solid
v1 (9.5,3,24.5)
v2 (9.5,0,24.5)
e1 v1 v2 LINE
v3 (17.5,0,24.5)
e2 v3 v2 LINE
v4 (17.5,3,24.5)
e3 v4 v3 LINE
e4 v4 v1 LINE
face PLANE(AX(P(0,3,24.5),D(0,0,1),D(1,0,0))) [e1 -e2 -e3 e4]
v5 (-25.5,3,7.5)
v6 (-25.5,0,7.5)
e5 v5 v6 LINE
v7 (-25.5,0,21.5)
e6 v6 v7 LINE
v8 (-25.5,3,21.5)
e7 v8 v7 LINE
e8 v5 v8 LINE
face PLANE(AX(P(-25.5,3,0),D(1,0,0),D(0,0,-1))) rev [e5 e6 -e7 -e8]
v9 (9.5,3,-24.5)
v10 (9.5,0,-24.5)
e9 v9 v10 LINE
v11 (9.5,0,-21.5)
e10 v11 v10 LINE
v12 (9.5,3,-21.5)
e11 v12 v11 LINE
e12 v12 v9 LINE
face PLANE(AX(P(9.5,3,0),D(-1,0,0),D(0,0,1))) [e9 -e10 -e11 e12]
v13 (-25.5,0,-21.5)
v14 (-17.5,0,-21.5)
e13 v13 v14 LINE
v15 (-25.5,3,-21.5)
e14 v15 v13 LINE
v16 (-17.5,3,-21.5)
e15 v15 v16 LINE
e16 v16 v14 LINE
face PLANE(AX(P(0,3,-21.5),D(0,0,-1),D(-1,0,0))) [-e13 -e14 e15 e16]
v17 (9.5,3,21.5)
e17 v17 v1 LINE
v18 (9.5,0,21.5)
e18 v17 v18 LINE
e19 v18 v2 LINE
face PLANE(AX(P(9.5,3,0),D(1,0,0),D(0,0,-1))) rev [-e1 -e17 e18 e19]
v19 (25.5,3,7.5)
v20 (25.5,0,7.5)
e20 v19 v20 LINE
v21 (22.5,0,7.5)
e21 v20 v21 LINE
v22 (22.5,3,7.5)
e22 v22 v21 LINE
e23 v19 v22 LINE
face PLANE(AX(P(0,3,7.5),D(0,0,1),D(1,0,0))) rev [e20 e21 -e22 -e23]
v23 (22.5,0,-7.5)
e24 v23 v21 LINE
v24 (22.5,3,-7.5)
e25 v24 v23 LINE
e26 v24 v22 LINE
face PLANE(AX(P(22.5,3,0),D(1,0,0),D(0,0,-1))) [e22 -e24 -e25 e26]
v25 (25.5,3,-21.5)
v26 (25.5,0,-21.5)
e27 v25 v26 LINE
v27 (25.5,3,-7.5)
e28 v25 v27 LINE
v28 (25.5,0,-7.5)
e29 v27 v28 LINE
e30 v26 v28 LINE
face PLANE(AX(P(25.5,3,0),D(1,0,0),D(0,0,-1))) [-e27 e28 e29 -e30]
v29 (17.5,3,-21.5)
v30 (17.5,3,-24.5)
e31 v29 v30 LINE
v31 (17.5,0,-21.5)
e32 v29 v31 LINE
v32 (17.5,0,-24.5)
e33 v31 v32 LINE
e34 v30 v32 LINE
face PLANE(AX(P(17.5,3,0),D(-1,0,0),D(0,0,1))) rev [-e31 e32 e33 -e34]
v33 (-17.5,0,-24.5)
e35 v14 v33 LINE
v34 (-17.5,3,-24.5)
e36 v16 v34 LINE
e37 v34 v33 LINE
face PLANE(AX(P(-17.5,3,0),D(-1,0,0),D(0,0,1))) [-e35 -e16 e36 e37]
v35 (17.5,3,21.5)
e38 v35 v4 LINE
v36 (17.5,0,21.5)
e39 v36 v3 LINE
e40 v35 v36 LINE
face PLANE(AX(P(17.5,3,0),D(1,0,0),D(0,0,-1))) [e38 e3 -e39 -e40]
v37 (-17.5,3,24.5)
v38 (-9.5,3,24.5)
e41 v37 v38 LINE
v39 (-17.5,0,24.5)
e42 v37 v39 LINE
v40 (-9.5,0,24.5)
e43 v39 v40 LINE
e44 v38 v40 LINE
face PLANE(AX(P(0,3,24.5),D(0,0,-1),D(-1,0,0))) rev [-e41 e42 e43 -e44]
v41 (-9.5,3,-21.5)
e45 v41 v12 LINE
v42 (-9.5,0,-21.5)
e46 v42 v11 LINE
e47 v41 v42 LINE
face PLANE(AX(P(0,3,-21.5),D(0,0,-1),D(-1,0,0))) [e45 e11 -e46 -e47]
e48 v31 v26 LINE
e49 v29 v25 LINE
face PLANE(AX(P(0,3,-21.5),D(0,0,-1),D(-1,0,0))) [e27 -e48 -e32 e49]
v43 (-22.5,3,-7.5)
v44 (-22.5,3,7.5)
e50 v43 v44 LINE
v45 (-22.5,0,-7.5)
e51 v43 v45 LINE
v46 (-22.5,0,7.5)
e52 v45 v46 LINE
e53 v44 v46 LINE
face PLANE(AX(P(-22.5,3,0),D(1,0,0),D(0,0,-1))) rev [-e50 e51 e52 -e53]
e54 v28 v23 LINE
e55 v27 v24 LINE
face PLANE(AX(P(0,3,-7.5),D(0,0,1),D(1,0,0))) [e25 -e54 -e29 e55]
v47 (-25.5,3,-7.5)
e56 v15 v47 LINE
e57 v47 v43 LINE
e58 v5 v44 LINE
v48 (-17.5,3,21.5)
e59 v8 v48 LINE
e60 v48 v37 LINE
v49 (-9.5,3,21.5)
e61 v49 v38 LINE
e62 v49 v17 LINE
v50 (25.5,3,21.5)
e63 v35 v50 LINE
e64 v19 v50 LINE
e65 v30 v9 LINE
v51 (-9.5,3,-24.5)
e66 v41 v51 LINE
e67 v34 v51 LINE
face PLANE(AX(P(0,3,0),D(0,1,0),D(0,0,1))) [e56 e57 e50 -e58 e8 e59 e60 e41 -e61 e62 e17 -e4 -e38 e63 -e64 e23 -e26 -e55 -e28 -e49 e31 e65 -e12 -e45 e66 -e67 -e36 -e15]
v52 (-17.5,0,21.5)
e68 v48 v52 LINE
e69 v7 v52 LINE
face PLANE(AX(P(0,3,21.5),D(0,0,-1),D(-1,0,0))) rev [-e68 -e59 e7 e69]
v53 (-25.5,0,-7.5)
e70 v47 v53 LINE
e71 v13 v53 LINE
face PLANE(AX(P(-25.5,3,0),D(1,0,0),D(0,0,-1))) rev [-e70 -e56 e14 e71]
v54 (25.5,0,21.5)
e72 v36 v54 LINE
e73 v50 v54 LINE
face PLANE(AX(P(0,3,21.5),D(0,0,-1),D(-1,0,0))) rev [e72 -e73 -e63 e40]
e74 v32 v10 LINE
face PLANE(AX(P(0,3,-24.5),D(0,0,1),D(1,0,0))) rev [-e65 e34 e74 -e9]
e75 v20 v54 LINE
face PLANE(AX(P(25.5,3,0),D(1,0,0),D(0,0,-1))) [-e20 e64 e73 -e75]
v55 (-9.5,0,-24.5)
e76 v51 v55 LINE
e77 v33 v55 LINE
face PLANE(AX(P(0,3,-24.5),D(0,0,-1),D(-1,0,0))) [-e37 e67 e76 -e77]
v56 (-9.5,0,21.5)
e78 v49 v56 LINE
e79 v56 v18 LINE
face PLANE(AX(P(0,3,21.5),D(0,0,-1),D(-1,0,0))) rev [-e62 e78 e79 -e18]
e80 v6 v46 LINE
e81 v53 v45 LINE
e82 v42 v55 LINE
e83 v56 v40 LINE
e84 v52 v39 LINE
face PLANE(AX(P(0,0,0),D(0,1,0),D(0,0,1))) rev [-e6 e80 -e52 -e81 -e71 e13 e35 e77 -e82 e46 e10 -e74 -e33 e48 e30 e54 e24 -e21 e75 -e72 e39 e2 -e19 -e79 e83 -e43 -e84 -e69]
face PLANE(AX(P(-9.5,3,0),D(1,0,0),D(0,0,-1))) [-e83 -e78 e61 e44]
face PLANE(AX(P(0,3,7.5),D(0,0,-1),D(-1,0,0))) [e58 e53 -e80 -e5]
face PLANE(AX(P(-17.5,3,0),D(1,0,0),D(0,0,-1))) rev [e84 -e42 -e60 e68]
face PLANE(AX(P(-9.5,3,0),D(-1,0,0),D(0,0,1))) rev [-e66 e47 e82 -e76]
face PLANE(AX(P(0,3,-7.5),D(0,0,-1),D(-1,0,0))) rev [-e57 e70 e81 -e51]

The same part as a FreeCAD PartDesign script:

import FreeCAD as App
import Part
import Sketcher

V = App.Vector

doc = App.newDocument("Part")
body = doc.addObject("PartDesign::Body", "Body")

sketch1 = body.newObject("Sketcher::SketchObject", "Sketch")
sketch1.AttachmentSupport = (doc.getObject("XZ_Plane"), [""])
sketch1.MapMode = "FlatFace"
sketch1.addGeometry([
    Part.LineSegment(V(-25.5, -21.5, 0), V(-25.5, -7.5, 0)),
    Part.LineSegment(V(-25.5, -7.5, 0), V(-22.5, -7.5, 0)),
    Part.LineSegment(V(-22.5, -7.5, 0), V(-22.5, 7.5, 0)),
    Part.LineSegment(V(-22.5, 7.5, 0), V(-25.5, 7.5, 0)),
    Part.LineSegment(V(-25.5, 7.5, 0), V(-25.5, 21.5, 0)),
    Part.LineSegment(V(-25.5, 21.5, 0), V(-17.5, 21.5, 0)),
    Part.LineSegment(V(-17.5, 21.5, 0), V(-17.5, 24.5, 0)),
    Part.LineSegment(V(-17.5, 24.5, 0), V(-9.5, 24.5, 0)),
    Part.LineSegment(V(-9.5, 24.5, 0), V(-9.5, 21.5, 0)),
    Part.LineSegment(V(-9.5, 21.5, 0), V(9.5, 21.5, 0)),
    Part.LineSegment(V(9.5, 21.5, 0), V(9.5, 24.5, 0)),
    Part.LineSegment(V(9.5, 24.5, 0), V(17.5, 24.5, 0)),
    Part.LineSegment(V(17.5, 24.5, 0), V(17.5, 21.5, 0)),
    Part.LineSegment(V(17.5, 21.5, 0), V(25.5, 21.5, 0)),
    Part.LineSegment(V(25.5, 21.5, 0), V(25.5, 7.5, 0)),
    Part.LineSegment(V(25.5, 7.5, 0), V(22.5, 7.5, 0)),
    Part.LineSegment(V(22.5, 7.5, 0), V(22.5, -7.5, 0)),
    Part.LineSegment(V(22.5, -7.5, 0), V(25.5, -7.5, 0)),
    Part.LineSegment(V(25.5, -7.5, 0), V(25.5, -21.5, 0)),
    Part.LineSegment(V(25.5, -21.5, 0), V(17.5, -21.5, 0)),
    Part.LineSegment(V(17.5, -21.5, 0), V(17.5, -24.5, 0)),
    Part.LineSegment(V(17.5, -24.5, 0), V(9.5, -24.5, 0)),
    Part.LineSegment(V(9.5, -24.5, 0), V(9.5, -21.5, 0)),
    Part.LineSegment(V(9.5, -21.5, 0), V(-9.5, -21.5, 0)),
    Part.LineSegment(V(-9.5, -21.5, 0), V(-9.5, -24.5, 0)),
    Part.LineSegment(V(-9.5, -24.5, 0), V(-17.5, -24.5, 0)),
    Part.LineSegment(V(-17.5, -24.5, 0), V(-17.5, -21.5, 0)),
    Part.LineSegment(V(-17.5, -21.5, 0), V(-25.5, -21.5, 0)),
], False)
sketch1.addConstraint([
    Sketcher.Constraint("Coincident", 0, 2, 1, 1),
    Sketcher.Constraint("Coincident", 1, 2, 2, 1),
    Sketcher.Constraint("Coincident", 2, 2, 3, 1),
    Sketcher.Constraint("Coincident", 3, 2, 4, 1),
    Sketcher.Constraint("Coincident", 4, 2, 5, 1),
    Sketcher.Constraint("Coincident", 5, 2, 6, 1),
    Sketcher.Constraint("Coincident", 6, 2, 7, 1),
    Sketcher.Constraint("Coincident", 7, 2, 8, 1),
    Sketcher.Constraint("Coincident", 8, 2, 9, 1),
    Sketcher.Constraint("Coincident", 9, 2, 10, 1),
    Sketcher.Constraint("Coincident", 10, 2, 11, 1),
    Sketcher.Constraint("Coincident", 11, 2, 12, 1),
    Sketcher.Constraint("Coincident", 12, 2, 13, 1),
    Sketcher.Constraint("Coincident", 13, 2, 14, 1),
    Sketcher.Constraint("Coincident", 14, 2, 15, 1),
    Sketcher.Constraint("Coincident", 15, 2, 16, 1),
    Sketcher.Constraint("Coincident", 16, 2, 17, 1),
    Sketcher.Constraint("Coincident", 17, 2, 18, 1),
    Sketcher.Constraint("Coincident", 18, 2, 19, 1),
    Sketcher.Constraint("Coincident", 19, 2, 20, 1),
    Sketcher.Constraint("Coincident", 20, 2, 21, 1),
    Sketcher.Constraint("Coincident", 21, 2, 22, 1),
    Sketcher.Constraint("Coincident", 22, 2, 23, 1),
    Sketcher.Constraint("Coincident", 23, 2, 24, 1),
    Sketcher.Constraint("Coincident", 24, 2, 25, 1),
    Sketcher.Constraint("Coincident", 25, 2, 26, 1),
    Sketcher.Constraint("Coincident", 26, 2, 27, 1),
    Sketcher.Constraint("Coincident", 27, 2, 0, 1),
    Sketcher.Constraint("Vertical", 0),
    Sketcher.Constraint("Horizontal", 1),
    Sketcher.Constraint("Vertical", 2),
    Sketcher.Constraint("Horizontal", 3),
    Sketcher.Constraint("Vertical", 4),
    Sketcher.Constraint("Horizontal", 5),
    Sketcher.Constraint("Vertical", 6),
    Sketcher.Constraint("Horizontal", 7),
    Sketcher.Constraint("Vertical", 8),
    Sketcher.Constraint("Horizontal", 9),
    Sketcher.Constraint("Vertical", 10),
    Sketcher.Constraint("Horizontal", 11),
    Sketcher.Constraint("Vertical", 12),
    Sketcher.Constraint("Horizontal", 13),
    Sketcher.Constraint("Vertical", 14),
    Sketcher.Constraint("Horizontal", 15),
    Sketcher.Constraint("Vertical", 16),
    Sketcher.Constraint("Horizontal", 17),
    Sketcher.Constraint("Vertical", 18),
    Sketcher.Constraint("Horizontal", 19),
    Sketcher.Constraint("Vertical", 20),
    Sketcher.Constraint("Horizontal", 21),
    Sketcher.Constraint("Vertical", 22),
    Sketcher.Constraint("Horizontal", 23),
    Sketcher.Constraint("Vertical", 24),
    Sketcher.Constraint("Horizontal", 25),
    Sketcher.Constraint("Vertical", 26),
    Sketcher.Constraint("Horizontal", 27),
    Sketcher.Constraint("Symmetric", 0, 2, 14, 2, -1, 1),
    Sketcher.Constraint("Symmetric", 2, 2, 16, 2, -1, 1),
    Sketcher.Constraint("Symmetric", 4, 2, 18, 2, -1, 1),
    Sketcher.Constraint("Symmetric", 6, 2, 20, 2, -1, 1),
    Sketcher.Constraint("Symmetric", 8, 2, 22, 2, -1, 1),
    Sketcher.Constraint("Symmetric", 10, 2, 24, 2, -1, 1),
    Sketcher.Constraint("Symmetric", 12, 2, 26, 2, -1, 1),
    Sketcher.Constraint("Symmetric", 7, 2, 10, 2, -2),
    Sketcher.Constraint("Symmetric", 5, 2, 12, 2, -2),
    Sketcher.Constraint("Symmetric", 3, 2, 14, 2, -2),
    Sketcher.Constraint("Horizontal", 5, 2, 8, 2),
    Sketcher.Constraint("Equal", 5, 7),
    Sketcher.Constraint("Equal", 17, 6),
    Sketcher.Constraint("DistanceX", 1, 1, 1, 2, 3.0),
    Sketcher.Constraint("DistanceX", 5, 1, 5, 2, 8.0),
    Sketcher.Constraint("DistanceX", 9, 1, 9, 2, 19.0),
    Sketcher.Constraint("DistanceY", 0, 1, 0, 2, 14.0),
    Sketcher.Constraint("DistanceY", 2, 1, 2, 2, 15.0),
])
pad1 = body.newObject("PartDesign::Pad", "Pad")
pad1.Profile = sketch1
pad1.Length = 3
pad1.Reversed = True

doc.recompute()
